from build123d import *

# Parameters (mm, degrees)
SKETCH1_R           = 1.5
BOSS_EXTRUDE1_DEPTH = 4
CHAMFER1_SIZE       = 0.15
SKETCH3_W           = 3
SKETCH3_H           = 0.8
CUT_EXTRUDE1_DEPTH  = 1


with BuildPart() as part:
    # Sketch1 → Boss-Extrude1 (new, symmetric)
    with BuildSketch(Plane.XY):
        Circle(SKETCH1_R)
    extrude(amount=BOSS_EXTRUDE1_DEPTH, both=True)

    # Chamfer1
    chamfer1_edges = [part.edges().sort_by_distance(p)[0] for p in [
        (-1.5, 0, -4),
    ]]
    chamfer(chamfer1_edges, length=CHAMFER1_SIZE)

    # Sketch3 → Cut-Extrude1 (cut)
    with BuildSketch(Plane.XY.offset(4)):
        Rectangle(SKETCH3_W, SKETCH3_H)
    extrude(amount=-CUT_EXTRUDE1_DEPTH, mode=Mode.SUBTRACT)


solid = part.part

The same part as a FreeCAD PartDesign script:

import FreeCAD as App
import Part
import Sketcher

V = App.Vector
Q = App.Units.Quantity


def edges_at(feature, points):
    """Names of the edges that pass closest to the given points."""
    edges = feature.Shape.Edges
    near = lambda p: min(range(len(edges)), key=lambda i: edges[i].distToShape(Part.Vertex(*p))[0])
    return sorted({f"Edge{near(p) + 1}" for p in points})


def add_polygon(sketch, points):
    """Adds a closed chain of lines whose ends are joined by coincident constraints."""
    first, n = sketch.GeometryCount, len(points)
    for a, b in zip(points, points[1:] + points[:1]):
        sketch.addGeometry(Part.LineSegment(App.Vector(*a, 0), App.Vector(*b, 0)), False)
    for i in range(n):
        sketch.addConstraint(Sketcher.Constraint("Coincident", first + i, 2, first + (i + 1) % n, 1))

doc = App.newDocument("Part")
body = doc.addObject("PartDesign::Body", "Body")

# Sketch on XY plane
sketch1 = doc.addObject("Sketcher::SketchObject", "Sketch")
body.addObject(sketch1)
sketch1.AttachmentSupport = (doc.XY_Plane, [""])
sketch1.MapMode = "FlatFace"
sketch1.addGeometry(Part.Circle(V(0, 0, 0), V(0, 0, 1), 1.5), False)
sketch1.addConstraint(Sketcher.Constraint("Coincident", 0, 3, -1, 1))
sketch1.addConstraint(Sketcher.Constraint("Diameter", 0, Q("3 mm")))
pad1 = doc.addObject("PartDesign::Pad", "Pad")
body.addObject(pad1)
pad1.Profile = sketch1
pad1.Length = 8
pad1.Midplane = True
doc.recompute()

chamfer = doc.addObject("PartDesign::Chamfer", "Chamfer")
body.addObject(chamfer)
chamfer.Base = (pad1, edges_at(pad1, [(-1.5, 0, -4)]))
chamfer.Size = 0.15

# Sketch on XY plane
sketch2 = doc.addObject("Sketcher::SketchObject", "Sketch001")
body.addObject(sketch2)
sketch2.AttachmentSupport = (doc.XY_Plane, [""])
sketch2.MapMode = "FlatFace"
sketch2.AttachmentOffset = App.Placement(V(0, 0, 4), App.Rotation())
add_polygon(sketch2, [(-1.5, 0.4), (-1.5, -0.4), (1.5, -0.4), (1.5, 0.4)])  # lines 0-3
sketch2.addConstraint(Sketcher.Constraint("Vertical", 0))
sketch2.addConstraint(Sketcher.Constraint("Horizontal", 1))
sketch2.addConstraint(Sketcher.Constraint("Vertical", 2))
sketch2.addConstraint(Sketcher.Constraint("Horizontal", 3))
sketch2.addConstraint(Sketcher.Constraint("Symmetric", 0, 2, 2, 2, -1, 1))
sketch2.addConstraint(Sketcher.Constraint("DistanceX", 1, 1, 1, 2, Q("3 mm")))
sketch2.addConstraint(Sketcher.Constraint("DistanceY", 0, 2, 0, 1, Q("0.8 mm")))
pocket1 = doc.addObject("PartDesign::Pocket", "Pocket")
body.addObject(pocket1)
pocket1.Profile = sketch2
pocket1.Length = 1

doc.recompute()
